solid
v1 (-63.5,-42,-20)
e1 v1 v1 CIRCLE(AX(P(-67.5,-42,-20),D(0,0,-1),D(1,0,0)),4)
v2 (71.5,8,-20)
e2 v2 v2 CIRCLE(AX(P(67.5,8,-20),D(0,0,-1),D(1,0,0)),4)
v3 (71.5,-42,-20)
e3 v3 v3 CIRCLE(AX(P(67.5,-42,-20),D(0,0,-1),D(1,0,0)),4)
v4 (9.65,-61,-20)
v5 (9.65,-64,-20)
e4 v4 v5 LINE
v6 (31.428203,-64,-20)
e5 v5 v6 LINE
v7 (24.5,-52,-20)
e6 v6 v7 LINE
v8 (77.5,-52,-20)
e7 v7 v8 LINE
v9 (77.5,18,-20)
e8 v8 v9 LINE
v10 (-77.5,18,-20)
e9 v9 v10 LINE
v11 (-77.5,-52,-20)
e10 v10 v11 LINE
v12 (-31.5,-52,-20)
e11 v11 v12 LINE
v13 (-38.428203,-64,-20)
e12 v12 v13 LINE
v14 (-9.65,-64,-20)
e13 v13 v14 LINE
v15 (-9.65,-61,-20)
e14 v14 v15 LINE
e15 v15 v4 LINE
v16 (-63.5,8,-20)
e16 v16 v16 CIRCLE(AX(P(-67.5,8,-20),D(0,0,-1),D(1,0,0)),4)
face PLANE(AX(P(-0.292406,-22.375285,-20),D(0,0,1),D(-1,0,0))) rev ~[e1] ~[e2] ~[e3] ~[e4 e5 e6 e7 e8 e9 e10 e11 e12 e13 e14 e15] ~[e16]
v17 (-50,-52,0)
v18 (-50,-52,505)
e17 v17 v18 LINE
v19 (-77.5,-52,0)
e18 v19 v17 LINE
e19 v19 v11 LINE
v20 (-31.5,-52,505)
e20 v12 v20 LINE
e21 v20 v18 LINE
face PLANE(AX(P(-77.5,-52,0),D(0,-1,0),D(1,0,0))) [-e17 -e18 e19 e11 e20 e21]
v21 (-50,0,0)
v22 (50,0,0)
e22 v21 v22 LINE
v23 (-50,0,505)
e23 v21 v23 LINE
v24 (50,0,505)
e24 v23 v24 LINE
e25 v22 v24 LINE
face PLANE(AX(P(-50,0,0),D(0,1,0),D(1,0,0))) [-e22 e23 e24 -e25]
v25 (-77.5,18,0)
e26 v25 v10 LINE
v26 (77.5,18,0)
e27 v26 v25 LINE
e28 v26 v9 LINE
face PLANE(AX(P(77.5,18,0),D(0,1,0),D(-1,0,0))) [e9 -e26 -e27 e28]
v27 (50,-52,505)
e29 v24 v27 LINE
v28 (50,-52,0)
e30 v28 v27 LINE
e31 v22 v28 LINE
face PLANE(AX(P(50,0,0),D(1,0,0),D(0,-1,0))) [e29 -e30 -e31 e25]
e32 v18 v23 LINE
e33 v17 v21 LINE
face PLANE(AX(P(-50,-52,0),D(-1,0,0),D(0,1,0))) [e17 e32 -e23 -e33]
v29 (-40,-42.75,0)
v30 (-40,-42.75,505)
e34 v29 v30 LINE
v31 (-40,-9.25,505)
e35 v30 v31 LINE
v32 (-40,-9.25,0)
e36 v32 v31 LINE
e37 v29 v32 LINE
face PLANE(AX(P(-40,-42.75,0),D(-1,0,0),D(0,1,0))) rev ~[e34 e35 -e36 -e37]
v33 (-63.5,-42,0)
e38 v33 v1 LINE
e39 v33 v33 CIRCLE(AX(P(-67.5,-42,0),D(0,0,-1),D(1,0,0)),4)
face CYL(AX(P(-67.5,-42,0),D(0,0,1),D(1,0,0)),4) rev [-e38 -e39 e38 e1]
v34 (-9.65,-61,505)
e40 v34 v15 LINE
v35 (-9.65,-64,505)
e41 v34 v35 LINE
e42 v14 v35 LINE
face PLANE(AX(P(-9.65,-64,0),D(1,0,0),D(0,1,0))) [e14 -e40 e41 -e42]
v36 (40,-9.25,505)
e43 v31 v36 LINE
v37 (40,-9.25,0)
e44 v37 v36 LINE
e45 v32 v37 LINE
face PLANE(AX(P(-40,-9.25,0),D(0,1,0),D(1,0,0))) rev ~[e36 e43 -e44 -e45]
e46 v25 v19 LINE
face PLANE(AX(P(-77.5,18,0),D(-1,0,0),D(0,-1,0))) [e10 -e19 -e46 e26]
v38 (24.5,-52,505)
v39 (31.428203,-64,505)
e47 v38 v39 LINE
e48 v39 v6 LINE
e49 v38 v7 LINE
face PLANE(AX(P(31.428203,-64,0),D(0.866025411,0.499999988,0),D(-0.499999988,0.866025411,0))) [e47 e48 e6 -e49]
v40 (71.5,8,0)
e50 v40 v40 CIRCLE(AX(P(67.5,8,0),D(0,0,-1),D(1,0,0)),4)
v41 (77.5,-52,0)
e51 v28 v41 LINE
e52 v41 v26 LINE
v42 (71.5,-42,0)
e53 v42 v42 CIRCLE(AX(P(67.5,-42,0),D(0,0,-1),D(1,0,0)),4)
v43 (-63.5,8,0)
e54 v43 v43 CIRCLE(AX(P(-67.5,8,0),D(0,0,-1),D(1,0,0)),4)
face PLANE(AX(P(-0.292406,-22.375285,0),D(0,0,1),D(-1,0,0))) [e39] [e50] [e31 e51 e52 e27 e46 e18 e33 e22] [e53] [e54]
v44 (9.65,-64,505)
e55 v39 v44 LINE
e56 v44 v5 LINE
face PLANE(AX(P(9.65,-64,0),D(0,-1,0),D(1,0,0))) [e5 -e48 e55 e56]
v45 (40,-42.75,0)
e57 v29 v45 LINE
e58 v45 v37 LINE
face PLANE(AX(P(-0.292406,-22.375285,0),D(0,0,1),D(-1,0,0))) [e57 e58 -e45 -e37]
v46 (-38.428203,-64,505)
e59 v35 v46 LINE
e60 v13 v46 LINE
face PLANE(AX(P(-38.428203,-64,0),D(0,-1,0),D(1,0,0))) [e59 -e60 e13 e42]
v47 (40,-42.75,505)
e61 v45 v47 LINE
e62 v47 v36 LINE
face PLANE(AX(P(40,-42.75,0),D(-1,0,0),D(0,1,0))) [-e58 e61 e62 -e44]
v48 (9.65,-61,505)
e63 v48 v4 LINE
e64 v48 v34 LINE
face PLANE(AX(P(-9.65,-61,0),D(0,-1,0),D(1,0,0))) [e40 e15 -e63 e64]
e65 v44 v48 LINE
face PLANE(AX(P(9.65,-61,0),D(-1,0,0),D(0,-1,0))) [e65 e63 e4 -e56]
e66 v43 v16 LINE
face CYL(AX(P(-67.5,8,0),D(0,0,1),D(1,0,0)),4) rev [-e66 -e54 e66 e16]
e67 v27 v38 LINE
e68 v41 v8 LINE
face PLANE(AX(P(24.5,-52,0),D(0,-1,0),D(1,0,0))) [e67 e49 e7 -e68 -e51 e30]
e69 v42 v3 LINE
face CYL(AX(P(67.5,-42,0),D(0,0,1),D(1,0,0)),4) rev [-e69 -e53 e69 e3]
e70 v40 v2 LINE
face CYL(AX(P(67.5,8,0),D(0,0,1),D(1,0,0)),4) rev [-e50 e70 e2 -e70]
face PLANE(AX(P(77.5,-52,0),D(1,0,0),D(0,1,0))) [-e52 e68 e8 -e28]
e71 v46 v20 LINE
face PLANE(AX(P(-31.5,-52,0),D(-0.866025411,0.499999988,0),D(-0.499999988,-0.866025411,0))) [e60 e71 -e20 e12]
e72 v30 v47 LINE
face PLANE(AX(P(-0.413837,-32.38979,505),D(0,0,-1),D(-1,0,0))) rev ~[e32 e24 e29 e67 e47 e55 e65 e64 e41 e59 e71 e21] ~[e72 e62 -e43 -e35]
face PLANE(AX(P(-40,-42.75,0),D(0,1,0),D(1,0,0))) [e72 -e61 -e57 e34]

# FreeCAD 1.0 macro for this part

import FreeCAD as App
import Part
import Sketcher
from FreeCAD import Vector
Q = App.Units.Quantity


def add_polygon(sketch, points):
    """Adds a closed chain of lines whose ends are joined by coincident constraints."""
    first, n = sketch.GeometryCount, len(points)
    for a, b in zip(points, points[1:] + points[:1]):
        sketch.addGeometry(Part.LineSegment(App.Vector(*a, 0), App.Vector(*b, 0)), False)
    for i in range(n):
        sketch.addConstraint(Sketcher.Constraint("Coincident", first + i, 2, first + (i + 1) % n, 1))

doc = App.newDocument("Part")
params = doc.addObject("Spreadsheet::Sheet", "Params")
for row, (alias, value) in enumerate([
    ("sketch1_width", "100 mm"),
    ("sketch1_width2", "80 mm"),
    ("sketch1_height", "52 mm"),
    ("sketch1_height2", "3 mm"),
    ("sketch1_width3", "18.5 mm"),
    ("pad1_length", "505 mm"),
    ("sketch2_diameter", "8 mm"),
    ("sketch2_width", "53 mm"),
    ("sketch2_width2", "46 mm"),
    ("sketch2_width3", "155 mm"),
    ("sketch2_height", "70 mm"),
    ("pad2_length", "20 mm"),
], start=1):
    params.set(f"A{row}", alias)
    params.set(f"B{row}", "=" + value)
    params.setAlias(f"B{row}", alias)

body = doc.addObject("PartDesign::Body", "Body")

# Sketch on XY plane
sketch1 = body.newObject("Sketcher::SketchObject", "Sketch")
sketch1.AttachmentSupport = (doc.getObject("XY_Plane"), [""])
sketch1.MapMode = "FlatFace"
add_polygon(sketch1, [(50, 0), (-50, 0), (-50, -52), (-31.5, -52), (-38.4, -64), (-9.7, -64), (-9.7, -61), (9.7, -61), (9.7, -64), (31.4, -64), (24.5, -52), (50, -52)])  # lines 0-11
add_polygon(sketch1, [(-40, -42.8), (-40, -9.2), (40, -9.2), (40, -42.8)])  # lines 12-15
sketch1.addConstraint([
    Sketcher.Constraint("Horizontal", 0),
    Sketcher.Constraint("Vertical", 1),
    Sketcher.Constraint("Horizontal", 2),
    Sketcher.Constraint("Horizontal", 4),
    Sketcher.Constraint("Vertical", 5),
    Sketcher.Constraint("Horizontal", 6),
    Sketcher.Constraint("Vertical", 7),
    Sketcher.Constraint("Horizontal", 8),
    Sketcher.Constraint("Horizontal", 10),
    Sketcher.Constraint("Vertical", 11),
    Sketcher.Constraint("Vertical", 12),
    Sketcher.Constraint("Horizontal", 13),
    Sketcher.Constraint("Vertical", 14),
    Sketcher.Constraint("Horizontal", 15),
    Sketcher.Constraint("Symmetric", 0, 2, 11, 2, -1, 1),
    Sketcher.Constraint("Symmetric", 4, 2, 7, 2, -2),
    Sketcher.Constraint("Horizontal", 2, 2, 9, 2),
    Sketcher.Constraint("Equal", 3, 9),
    Sketcher.Constraint("DistanceX", 0, 2, 0, 1, Q("100 mm")),
    Sketcher.Constraint("DistanceX", 13, 1, 13, 2, Q("80 mm")),
    Sketcher.Constraint("DistanceY", 1, 2, 1, 1, Q("52 mm")),
    Sketcher.Constraint("DistanceY", 5, 1, 5, 2, Q("3 mm")),
    Sketcher.Constraint("Angle", 3, Q("-119.999999 deg")),
    Sketcher.Constraint("DistanceX", 2, 1, 2, 2, Q("18.5 mm")),
    Sketcher.Constraint("DistanceX", 6, 1, 6, 2, Q("19.3 mm")),
    Sketcher.Constraint("DistanceX", 10, 1, 10, 2, Q("25.5 mm")),
    Sketcher.Constraint("DistanceY", 12, 1, 12, 2, Q("33.5 mm")),
    Sketcher.Constraint("DistanceY", 3, 2, -1, 1, Q("64 mm")),
    Sketcher.Constraint("DistanceX", 12, 2, -1, 1, Q("40 mm")),
    Sketcher.Constraint("DistanceY", 12, 2, -1, 1, Q("9.25 mm")),
])
sketch1.setExpression("Constraints[34]", "Params.sketch1_width")
sketch1.setExpression("Constraints[35]", "Params.sketch1_width2")
sketch1.setExpression("Constraints[36]", "Params.sketch1_height")
sketch1.setExpression("Constraints[37]", "Params.sketch1_height2")
sketch1.setExpression("Constraints[39]", "Params.sketch1_width3")
pad1 = body.newObject("PartDesign::Pad", "Pad")
pad1.Profile = sketch1
pad1.setExpression("Length", "Params.pad1_length")

# Sketch on XY plane
sketch2 = body.newObject("Sketcher::SketchObject", "Sketch001")
sketch2.AttachmentSupport = (doc.getObject("XY_Plane"), [""])
sketch2.MapMode = "FlatFace"
add_polygon(sketch2, [(77.5, 18), (77.5, -52), (24.5, -52), (31.4, -64), (9.7, -64), (9.7, -61), (-9.7, -61), (-9.7, -64), (-38.4, -64), (-31.5, -52), (-77.5, -52), (-77.5, 18)])  # lines 0-11
sketch2.addGeometry(Part.Circle(Vector(67.5, 8, 0), Vector(0, 0, 1), 4), False)  # 12
sketch2.addGeometry(Part.Circle(Vector(-67.5, 8, 0), Vector(0, 0, 1), 4), False)  # 13
sketch2.addGeometry(Part.Circle(Vector(67.5, -42, 0), Vector(0, 0, 1), 4), False)  # 14
sketch2.addGeometry(Part.Circle(Vector(-67.5, -42, 0), Vector(0, 0, 1), 4), False)  # 15
sketch2.addConstraint([
    Sketcher.Constraint("Vertical", 0),
    Sketcher.Constraint("Horizontal", 1),
    Sketcher.Constraint("Horizontal", 3),
    Sketcher.Constraint("Vertical", 4),
    Sketcher.Constraint("Horizontal", 5),
    Sketcher.Constraint("Vertical", 6),
    Sketcher.Constraint("Horizontal", 7),
    Sketcher.Constraint("Horizontal", 9),
    Sketcher.Constraint("Vertical", 10),
    Sketcher.Constraint("Horizontal", 11),
    Sketcher.Constraint("Equal", 12, 13),
    Sketcher.Constraint("Equal", 13, 14),
    Sketcher.Constraint("Equal", 14, 15),
    Sketcher.Constraint("Symmetric", 12, 3, 13, 3, -2),
    Sketcher.Constraint("Symmetric", 14, 3, 15, 3, -2),
    Sketcher.Constraint("Symmetric", 3, 2, 6, 2, -2),
    Sketcher.Constraint("Symmetric", 0, 2, 9, 2, -2),
    Sketcher.Constraint("Vertical", 12, 3, 14, 3),
    Sketcher.Constraint("Equal", 2, 8),
    Sketcher.Constraint("Diameter", 12, Q("8 mm")),
    Sketcher.Constraint("DistanceX", 1, 2, 1, 1, Q("53 mm")),
    Sketcher.Constraint("DistanceX", 9, 2, 9, 1, Q("46 mm")),
    Sketcher.Constraint("DistanceX", 11, 1, 11, 2, Q("155 mm")),
    Sketcher.Constraint("DistanceY", 0, 2, 0, 1, Q("70 mm")),
    Sketcher.Constraint("DistanceY", 4, 1, 4, 2, Q("3 mm")),
    Sketcher.Constraint("Angle", 2, Q("-60.000001 deg")),
    Sketcher.Constraint("DistanceX", 5, 2, 5, 1, Q("19.3 mm")),
    Sketcher.Constraint("DistanceY", -1, 1, 12, 3, Q("8 mm")),
    Sketcher.Constraint("DistanceY", 14, 3, -1, 1, Q("42 mm")),
    Sketcher.Constraint("DistanceY", 0, 2, -1, 1, Q("52 mm")),
    Sketcher.Constraint("DistanceY", 2, 2, -1, 1, Q("64 mm")),
    Sketcher.Constraint("DistanceX", 13, 3, 12, 3, Q("135 mm")),
])
sketch2.setExpression("Constraints[31]", "Params.sketch2_diameter")
sketch2.setExpression("Constraints[32]", "Params.sketch2_width")
sketch2.setExpression("Constraints[33]", "Params.sketch2_width2")
sketch2.setExpression("Constraints[34]", "Params.sketch2_width3")
sketch2.setExpression("Constraints[35]", "Params.sketch2_height")
pad2 = body.newObject("PartDesign::Pad", "Pad001")
pad2.Profile = sketch2
pad2.setExpression("Length", "Params.pad2_length")
pad2.Reversed = True

doc.recompute()
